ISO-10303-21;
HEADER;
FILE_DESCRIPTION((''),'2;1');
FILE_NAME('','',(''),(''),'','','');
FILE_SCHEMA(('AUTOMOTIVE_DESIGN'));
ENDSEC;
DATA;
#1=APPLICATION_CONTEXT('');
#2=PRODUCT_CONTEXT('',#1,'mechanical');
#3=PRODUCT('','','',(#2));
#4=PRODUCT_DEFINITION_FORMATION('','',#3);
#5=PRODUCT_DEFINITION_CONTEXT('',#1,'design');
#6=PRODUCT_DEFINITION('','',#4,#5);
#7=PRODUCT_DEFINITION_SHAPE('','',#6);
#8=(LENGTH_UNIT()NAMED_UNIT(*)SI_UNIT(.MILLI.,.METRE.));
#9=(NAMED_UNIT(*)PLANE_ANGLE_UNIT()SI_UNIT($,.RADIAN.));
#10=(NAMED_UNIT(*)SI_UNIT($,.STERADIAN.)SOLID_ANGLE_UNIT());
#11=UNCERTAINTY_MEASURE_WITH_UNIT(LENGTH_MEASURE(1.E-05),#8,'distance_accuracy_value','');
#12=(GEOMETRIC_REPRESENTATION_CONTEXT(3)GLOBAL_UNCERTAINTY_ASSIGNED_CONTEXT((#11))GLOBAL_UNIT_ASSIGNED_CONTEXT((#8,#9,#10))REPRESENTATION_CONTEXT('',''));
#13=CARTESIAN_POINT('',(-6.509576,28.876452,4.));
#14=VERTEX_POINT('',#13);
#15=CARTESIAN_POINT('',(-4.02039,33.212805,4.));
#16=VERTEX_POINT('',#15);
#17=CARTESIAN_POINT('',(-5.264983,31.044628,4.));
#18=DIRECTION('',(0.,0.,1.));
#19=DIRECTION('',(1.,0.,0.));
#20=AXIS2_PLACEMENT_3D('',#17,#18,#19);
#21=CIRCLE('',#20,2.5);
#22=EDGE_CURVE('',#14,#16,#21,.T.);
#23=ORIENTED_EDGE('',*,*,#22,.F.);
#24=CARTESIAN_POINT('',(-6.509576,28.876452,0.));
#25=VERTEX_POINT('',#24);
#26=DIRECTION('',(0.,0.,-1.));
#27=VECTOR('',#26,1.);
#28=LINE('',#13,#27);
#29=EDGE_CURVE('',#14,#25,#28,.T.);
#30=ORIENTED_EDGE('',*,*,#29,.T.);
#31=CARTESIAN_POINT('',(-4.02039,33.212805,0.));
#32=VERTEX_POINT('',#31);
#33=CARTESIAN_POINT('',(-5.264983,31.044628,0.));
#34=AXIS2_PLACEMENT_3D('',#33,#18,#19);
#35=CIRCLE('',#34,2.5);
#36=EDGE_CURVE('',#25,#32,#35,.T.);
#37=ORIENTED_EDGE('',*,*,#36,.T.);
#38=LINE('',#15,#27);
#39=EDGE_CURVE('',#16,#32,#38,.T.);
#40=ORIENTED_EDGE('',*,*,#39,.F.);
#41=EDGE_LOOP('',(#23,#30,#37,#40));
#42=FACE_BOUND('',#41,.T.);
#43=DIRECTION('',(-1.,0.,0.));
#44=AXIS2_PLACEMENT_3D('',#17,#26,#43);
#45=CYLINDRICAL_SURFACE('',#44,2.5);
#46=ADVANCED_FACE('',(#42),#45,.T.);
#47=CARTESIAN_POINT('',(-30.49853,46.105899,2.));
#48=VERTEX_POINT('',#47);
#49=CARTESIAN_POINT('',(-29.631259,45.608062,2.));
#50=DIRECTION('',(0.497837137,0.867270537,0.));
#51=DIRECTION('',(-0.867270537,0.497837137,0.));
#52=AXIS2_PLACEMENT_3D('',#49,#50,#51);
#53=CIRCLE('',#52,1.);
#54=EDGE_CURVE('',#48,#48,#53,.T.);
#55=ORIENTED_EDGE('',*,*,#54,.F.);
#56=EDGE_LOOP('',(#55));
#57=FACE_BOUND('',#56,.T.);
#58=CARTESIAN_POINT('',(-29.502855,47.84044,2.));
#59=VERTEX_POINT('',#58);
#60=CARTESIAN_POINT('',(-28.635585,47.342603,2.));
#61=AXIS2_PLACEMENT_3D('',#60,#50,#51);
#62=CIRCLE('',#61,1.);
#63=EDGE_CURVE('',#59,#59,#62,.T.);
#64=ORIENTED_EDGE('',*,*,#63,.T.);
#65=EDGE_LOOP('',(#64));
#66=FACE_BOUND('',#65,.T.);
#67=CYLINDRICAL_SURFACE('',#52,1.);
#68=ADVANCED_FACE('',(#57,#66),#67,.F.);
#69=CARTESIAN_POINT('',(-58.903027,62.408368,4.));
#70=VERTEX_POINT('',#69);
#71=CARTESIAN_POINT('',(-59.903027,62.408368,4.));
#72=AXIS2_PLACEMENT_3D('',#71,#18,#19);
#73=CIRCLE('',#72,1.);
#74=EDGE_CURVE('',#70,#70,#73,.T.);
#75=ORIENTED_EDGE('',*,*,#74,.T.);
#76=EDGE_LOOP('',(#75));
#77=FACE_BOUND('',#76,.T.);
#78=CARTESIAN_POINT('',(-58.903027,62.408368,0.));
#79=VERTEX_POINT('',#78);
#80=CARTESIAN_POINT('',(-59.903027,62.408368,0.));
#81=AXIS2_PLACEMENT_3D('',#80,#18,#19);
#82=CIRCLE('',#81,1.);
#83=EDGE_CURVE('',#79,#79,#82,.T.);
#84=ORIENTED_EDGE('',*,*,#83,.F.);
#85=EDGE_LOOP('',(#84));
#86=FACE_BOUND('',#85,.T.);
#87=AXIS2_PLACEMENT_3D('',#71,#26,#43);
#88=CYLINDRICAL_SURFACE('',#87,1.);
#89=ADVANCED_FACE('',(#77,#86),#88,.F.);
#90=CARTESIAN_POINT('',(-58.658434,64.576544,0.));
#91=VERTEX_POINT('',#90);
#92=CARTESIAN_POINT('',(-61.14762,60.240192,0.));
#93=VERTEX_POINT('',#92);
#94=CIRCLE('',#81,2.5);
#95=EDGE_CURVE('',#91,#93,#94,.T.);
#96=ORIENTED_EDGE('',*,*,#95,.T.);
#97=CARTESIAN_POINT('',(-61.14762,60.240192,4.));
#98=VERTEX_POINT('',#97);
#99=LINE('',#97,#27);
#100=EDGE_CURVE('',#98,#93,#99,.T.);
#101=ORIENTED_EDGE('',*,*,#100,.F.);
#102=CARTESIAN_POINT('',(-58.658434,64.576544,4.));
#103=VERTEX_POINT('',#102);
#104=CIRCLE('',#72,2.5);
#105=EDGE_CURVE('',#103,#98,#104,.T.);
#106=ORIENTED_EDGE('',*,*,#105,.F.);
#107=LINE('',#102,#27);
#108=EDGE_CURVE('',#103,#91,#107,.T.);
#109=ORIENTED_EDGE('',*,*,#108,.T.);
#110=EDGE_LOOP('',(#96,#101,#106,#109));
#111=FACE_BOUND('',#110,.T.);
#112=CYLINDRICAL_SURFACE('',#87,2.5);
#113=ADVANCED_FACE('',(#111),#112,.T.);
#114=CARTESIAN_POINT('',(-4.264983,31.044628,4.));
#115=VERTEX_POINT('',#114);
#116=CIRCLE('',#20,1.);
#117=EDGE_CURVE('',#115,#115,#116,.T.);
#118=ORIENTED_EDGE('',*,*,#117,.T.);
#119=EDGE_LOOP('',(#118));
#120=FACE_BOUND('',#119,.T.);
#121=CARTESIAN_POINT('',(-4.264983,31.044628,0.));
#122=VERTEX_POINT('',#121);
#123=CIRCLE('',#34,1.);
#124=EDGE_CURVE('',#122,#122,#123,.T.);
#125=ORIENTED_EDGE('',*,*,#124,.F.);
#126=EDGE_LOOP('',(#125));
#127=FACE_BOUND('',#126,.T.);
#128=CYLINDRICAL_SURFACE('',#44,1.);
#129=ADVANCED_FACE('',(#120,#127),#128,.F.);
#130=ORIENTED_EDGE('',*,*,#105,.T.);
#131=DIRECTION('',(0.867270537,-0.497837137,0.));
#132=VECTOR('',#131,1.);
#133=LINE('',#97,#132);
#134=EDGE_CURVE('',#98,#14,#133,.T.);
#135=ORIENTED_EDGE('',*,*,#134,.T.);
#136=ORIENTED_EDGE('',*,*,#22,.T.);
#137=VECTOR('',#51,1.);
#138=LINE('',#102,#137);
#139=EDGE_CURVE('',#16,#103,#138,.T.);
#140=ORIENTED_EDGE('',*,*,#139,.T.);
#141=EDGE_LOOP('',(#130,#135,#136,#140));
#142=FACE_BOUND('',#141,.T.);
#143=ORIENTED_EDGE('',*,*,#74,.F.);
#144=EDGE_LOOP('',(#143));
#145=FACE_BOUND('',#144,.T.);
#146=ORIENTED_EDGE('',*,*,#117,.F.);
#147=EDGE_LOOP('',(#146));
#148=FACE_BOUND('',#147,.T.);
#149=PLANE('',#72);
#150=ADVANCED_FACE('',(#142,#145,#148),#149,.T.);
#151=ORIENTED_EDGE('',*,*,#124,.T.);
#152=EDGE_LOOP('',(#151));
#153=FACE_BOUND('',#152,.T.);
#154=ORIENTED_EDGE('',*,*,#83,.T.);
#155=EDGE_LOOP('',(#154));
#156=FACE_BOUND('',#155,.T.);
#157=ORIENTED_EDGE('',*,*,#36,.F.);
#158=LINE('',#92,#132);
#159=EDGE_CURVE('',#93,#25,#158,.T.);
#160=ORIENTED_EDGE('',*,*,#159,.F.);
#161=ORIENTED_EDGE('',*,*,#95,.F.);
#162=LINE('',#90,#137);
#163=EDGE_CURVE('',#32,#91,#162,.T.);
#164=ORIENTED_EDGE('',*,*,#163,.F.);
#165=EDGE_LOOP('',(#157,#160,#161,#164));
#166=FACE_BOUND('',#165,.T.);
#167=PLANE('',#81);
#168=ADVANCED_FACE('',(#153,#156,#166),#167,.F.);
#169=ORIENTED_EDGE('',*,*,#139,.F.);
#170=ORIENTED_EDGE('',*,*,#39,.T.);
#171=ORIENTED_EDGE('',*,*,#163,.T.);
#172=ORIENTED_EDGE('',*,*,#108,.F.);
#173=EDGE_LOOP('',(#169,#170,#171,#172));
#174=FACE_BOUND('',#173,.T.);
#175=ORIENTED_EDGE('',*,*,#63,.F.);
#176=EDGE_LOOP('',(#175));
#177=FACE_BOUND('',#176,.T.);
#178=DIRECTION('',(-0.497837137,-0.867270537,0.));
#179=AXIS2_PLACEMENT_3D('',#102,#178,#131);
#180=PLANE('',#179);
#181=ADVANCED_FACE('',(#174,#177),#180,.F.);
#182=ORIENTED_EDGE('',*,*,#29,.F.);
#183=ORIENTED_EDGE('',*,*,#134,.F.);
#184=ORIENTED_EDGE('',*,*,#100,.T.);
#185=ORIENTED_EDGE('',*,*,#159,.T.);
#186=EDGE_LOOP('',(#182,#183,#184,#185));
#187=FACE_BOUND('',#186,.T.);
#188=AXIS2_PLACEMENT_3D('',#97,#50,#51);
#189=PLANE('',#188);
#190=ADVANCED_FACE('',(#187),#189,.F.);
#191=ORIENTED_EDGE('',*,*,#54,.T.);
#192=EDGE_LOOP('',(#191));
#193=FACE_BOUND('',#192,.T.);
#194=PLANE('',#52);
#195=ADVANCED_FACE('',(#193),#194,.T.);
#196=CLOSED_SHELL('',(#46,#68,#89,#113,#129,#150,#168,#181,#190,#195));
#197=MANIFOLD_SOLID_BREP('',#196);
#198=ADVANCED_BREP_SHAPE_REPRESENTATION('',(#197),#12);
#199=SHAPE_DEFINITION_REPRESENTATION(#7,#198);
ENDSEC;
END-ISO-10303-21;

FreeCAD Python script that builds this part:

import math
import FreeCAD as App
import Part
import Sketcher
Q = App.Units.Quantity

doc = App.newDocument("Part")
body = doc.addObject("PartDesign::Body", "Body")

sketch1 = doc.addObject("Sketcher::SketchObject", "Sketch")
body.addObject(sketch1)
sketch1.AttachmentSupport = (doc.XY_Plane, [""])
sketch1.MapMode = "FlatFace"
sketch1.addGeometry([
    Part.LineSegment(App.Vector(-4.02039, 33.212805, 0), App.Vector(-58.658434, 64.576544, 0)),
    Part.ArcOfCircle(Part.Circle(App.Vector(-59.903027, 62.408368, 0), App.Vector(0, 0, 1), 2.5), math.radians(60.142991), math.radians(240.142991)),
    Part.LineSegment(App.Vector(-61.14762, 60.240192, 0), App.Vector(-6.509576, 28.876452, 0)),
    Part.ArcOfCircle(Part.Circle(App.Vector(-5.264983, 31.044628, 0), App.Vector(0, 0, 1), 2.5), math.radians(-119.857009), math.radians(60.142991)),
    Part.Circle(App.Vector(-5.264983, 31.044628, 0), App.Vector(0, 0, 1), 1),
    Part.Circle(App.Vector(-59.903027, 62.408368, 0), App.Vector(0, 0, 1), 1),
], False)
sketch1.addConstraint([
    Sketcher.Constraint("Tangent", 0, 2, 1, 1),
    Sketcher.Constraint("Tangent", 1, 2, 2, 1),
    Sketcher.Constraint("Tangent", 2, 2, 3, 1),
    Sketcher.Constraint("Tangent", 3, 2, 0, 1),
    Sketcher.Constraint("Coincident", 4, 3, 3, 3),
    Sketcher.Constraint("Coincident", 5, 3, 1, 3),
    Sketcher.Constraint("Equal", 1, 3),
    Sketcher.Constraint("Equal", 4, 5),
    Sketcher.Constraint("Diameter", 4, Q("2 mm")),
    Sketcher.Constraint("Radius", 1, Q("2.5 mm")),
    Sketcher.Constraint("Distance", 0, Q("63 mm")),
    Sketcher.Constraint("DistanceY", -1, 1, 3, 3, Q("31.044628 mm")),
    Sketcher.Constraint("DistanceX", 1, 2, -1, 1, Q("61.14762 mm")),
    Sketcher.Constraint("DistanceY", -1, 1, 1, 2, Q("60.240192 mm")),
])
pad1 = doc.addObject("PartDesign::Pad", "Pad")
body.addObject(pad1)
pad1.Profile = sketch1
pad1.Length = 4

sketch2 = doc.addObject("Sketcher::SketchObject", "Sketch001")
body.addObject(sketch2)
sketch2.Placement = App.Placement(App.Vector(13.343522, 23.245441, 0), App.Rotation(App.Vector(0.867270537, -0.497837137, 0), App.Vector(0, 0, -0.999999999), App.Vector(0.497837137, 0.867270537, 0), "ZXY"))
sketch2.addGeometry(Part.Circle(App.Vector(-48.403705, -2, 0), App.Vector(0, 0, 1), 1), False)
sketch2.addConstraint([
    Sketcher.Constraint("Diameter", 0, Q("2 mm")),
    Sketcher.Constraint("DistanceY", 0, 3, -1, 1, Q("2 mm")),
    Sketcher.Constraint("DistanceX", 0, 3, -1, 1, Q("48.403705 mm")),
])
pocket1 = doc.addObject("PartDesign::Pocket", "Pocket")
body.addObject(pocket1)
pocket1.Profile = sketch2
pocket1.Length = 2

doc.recompute()
